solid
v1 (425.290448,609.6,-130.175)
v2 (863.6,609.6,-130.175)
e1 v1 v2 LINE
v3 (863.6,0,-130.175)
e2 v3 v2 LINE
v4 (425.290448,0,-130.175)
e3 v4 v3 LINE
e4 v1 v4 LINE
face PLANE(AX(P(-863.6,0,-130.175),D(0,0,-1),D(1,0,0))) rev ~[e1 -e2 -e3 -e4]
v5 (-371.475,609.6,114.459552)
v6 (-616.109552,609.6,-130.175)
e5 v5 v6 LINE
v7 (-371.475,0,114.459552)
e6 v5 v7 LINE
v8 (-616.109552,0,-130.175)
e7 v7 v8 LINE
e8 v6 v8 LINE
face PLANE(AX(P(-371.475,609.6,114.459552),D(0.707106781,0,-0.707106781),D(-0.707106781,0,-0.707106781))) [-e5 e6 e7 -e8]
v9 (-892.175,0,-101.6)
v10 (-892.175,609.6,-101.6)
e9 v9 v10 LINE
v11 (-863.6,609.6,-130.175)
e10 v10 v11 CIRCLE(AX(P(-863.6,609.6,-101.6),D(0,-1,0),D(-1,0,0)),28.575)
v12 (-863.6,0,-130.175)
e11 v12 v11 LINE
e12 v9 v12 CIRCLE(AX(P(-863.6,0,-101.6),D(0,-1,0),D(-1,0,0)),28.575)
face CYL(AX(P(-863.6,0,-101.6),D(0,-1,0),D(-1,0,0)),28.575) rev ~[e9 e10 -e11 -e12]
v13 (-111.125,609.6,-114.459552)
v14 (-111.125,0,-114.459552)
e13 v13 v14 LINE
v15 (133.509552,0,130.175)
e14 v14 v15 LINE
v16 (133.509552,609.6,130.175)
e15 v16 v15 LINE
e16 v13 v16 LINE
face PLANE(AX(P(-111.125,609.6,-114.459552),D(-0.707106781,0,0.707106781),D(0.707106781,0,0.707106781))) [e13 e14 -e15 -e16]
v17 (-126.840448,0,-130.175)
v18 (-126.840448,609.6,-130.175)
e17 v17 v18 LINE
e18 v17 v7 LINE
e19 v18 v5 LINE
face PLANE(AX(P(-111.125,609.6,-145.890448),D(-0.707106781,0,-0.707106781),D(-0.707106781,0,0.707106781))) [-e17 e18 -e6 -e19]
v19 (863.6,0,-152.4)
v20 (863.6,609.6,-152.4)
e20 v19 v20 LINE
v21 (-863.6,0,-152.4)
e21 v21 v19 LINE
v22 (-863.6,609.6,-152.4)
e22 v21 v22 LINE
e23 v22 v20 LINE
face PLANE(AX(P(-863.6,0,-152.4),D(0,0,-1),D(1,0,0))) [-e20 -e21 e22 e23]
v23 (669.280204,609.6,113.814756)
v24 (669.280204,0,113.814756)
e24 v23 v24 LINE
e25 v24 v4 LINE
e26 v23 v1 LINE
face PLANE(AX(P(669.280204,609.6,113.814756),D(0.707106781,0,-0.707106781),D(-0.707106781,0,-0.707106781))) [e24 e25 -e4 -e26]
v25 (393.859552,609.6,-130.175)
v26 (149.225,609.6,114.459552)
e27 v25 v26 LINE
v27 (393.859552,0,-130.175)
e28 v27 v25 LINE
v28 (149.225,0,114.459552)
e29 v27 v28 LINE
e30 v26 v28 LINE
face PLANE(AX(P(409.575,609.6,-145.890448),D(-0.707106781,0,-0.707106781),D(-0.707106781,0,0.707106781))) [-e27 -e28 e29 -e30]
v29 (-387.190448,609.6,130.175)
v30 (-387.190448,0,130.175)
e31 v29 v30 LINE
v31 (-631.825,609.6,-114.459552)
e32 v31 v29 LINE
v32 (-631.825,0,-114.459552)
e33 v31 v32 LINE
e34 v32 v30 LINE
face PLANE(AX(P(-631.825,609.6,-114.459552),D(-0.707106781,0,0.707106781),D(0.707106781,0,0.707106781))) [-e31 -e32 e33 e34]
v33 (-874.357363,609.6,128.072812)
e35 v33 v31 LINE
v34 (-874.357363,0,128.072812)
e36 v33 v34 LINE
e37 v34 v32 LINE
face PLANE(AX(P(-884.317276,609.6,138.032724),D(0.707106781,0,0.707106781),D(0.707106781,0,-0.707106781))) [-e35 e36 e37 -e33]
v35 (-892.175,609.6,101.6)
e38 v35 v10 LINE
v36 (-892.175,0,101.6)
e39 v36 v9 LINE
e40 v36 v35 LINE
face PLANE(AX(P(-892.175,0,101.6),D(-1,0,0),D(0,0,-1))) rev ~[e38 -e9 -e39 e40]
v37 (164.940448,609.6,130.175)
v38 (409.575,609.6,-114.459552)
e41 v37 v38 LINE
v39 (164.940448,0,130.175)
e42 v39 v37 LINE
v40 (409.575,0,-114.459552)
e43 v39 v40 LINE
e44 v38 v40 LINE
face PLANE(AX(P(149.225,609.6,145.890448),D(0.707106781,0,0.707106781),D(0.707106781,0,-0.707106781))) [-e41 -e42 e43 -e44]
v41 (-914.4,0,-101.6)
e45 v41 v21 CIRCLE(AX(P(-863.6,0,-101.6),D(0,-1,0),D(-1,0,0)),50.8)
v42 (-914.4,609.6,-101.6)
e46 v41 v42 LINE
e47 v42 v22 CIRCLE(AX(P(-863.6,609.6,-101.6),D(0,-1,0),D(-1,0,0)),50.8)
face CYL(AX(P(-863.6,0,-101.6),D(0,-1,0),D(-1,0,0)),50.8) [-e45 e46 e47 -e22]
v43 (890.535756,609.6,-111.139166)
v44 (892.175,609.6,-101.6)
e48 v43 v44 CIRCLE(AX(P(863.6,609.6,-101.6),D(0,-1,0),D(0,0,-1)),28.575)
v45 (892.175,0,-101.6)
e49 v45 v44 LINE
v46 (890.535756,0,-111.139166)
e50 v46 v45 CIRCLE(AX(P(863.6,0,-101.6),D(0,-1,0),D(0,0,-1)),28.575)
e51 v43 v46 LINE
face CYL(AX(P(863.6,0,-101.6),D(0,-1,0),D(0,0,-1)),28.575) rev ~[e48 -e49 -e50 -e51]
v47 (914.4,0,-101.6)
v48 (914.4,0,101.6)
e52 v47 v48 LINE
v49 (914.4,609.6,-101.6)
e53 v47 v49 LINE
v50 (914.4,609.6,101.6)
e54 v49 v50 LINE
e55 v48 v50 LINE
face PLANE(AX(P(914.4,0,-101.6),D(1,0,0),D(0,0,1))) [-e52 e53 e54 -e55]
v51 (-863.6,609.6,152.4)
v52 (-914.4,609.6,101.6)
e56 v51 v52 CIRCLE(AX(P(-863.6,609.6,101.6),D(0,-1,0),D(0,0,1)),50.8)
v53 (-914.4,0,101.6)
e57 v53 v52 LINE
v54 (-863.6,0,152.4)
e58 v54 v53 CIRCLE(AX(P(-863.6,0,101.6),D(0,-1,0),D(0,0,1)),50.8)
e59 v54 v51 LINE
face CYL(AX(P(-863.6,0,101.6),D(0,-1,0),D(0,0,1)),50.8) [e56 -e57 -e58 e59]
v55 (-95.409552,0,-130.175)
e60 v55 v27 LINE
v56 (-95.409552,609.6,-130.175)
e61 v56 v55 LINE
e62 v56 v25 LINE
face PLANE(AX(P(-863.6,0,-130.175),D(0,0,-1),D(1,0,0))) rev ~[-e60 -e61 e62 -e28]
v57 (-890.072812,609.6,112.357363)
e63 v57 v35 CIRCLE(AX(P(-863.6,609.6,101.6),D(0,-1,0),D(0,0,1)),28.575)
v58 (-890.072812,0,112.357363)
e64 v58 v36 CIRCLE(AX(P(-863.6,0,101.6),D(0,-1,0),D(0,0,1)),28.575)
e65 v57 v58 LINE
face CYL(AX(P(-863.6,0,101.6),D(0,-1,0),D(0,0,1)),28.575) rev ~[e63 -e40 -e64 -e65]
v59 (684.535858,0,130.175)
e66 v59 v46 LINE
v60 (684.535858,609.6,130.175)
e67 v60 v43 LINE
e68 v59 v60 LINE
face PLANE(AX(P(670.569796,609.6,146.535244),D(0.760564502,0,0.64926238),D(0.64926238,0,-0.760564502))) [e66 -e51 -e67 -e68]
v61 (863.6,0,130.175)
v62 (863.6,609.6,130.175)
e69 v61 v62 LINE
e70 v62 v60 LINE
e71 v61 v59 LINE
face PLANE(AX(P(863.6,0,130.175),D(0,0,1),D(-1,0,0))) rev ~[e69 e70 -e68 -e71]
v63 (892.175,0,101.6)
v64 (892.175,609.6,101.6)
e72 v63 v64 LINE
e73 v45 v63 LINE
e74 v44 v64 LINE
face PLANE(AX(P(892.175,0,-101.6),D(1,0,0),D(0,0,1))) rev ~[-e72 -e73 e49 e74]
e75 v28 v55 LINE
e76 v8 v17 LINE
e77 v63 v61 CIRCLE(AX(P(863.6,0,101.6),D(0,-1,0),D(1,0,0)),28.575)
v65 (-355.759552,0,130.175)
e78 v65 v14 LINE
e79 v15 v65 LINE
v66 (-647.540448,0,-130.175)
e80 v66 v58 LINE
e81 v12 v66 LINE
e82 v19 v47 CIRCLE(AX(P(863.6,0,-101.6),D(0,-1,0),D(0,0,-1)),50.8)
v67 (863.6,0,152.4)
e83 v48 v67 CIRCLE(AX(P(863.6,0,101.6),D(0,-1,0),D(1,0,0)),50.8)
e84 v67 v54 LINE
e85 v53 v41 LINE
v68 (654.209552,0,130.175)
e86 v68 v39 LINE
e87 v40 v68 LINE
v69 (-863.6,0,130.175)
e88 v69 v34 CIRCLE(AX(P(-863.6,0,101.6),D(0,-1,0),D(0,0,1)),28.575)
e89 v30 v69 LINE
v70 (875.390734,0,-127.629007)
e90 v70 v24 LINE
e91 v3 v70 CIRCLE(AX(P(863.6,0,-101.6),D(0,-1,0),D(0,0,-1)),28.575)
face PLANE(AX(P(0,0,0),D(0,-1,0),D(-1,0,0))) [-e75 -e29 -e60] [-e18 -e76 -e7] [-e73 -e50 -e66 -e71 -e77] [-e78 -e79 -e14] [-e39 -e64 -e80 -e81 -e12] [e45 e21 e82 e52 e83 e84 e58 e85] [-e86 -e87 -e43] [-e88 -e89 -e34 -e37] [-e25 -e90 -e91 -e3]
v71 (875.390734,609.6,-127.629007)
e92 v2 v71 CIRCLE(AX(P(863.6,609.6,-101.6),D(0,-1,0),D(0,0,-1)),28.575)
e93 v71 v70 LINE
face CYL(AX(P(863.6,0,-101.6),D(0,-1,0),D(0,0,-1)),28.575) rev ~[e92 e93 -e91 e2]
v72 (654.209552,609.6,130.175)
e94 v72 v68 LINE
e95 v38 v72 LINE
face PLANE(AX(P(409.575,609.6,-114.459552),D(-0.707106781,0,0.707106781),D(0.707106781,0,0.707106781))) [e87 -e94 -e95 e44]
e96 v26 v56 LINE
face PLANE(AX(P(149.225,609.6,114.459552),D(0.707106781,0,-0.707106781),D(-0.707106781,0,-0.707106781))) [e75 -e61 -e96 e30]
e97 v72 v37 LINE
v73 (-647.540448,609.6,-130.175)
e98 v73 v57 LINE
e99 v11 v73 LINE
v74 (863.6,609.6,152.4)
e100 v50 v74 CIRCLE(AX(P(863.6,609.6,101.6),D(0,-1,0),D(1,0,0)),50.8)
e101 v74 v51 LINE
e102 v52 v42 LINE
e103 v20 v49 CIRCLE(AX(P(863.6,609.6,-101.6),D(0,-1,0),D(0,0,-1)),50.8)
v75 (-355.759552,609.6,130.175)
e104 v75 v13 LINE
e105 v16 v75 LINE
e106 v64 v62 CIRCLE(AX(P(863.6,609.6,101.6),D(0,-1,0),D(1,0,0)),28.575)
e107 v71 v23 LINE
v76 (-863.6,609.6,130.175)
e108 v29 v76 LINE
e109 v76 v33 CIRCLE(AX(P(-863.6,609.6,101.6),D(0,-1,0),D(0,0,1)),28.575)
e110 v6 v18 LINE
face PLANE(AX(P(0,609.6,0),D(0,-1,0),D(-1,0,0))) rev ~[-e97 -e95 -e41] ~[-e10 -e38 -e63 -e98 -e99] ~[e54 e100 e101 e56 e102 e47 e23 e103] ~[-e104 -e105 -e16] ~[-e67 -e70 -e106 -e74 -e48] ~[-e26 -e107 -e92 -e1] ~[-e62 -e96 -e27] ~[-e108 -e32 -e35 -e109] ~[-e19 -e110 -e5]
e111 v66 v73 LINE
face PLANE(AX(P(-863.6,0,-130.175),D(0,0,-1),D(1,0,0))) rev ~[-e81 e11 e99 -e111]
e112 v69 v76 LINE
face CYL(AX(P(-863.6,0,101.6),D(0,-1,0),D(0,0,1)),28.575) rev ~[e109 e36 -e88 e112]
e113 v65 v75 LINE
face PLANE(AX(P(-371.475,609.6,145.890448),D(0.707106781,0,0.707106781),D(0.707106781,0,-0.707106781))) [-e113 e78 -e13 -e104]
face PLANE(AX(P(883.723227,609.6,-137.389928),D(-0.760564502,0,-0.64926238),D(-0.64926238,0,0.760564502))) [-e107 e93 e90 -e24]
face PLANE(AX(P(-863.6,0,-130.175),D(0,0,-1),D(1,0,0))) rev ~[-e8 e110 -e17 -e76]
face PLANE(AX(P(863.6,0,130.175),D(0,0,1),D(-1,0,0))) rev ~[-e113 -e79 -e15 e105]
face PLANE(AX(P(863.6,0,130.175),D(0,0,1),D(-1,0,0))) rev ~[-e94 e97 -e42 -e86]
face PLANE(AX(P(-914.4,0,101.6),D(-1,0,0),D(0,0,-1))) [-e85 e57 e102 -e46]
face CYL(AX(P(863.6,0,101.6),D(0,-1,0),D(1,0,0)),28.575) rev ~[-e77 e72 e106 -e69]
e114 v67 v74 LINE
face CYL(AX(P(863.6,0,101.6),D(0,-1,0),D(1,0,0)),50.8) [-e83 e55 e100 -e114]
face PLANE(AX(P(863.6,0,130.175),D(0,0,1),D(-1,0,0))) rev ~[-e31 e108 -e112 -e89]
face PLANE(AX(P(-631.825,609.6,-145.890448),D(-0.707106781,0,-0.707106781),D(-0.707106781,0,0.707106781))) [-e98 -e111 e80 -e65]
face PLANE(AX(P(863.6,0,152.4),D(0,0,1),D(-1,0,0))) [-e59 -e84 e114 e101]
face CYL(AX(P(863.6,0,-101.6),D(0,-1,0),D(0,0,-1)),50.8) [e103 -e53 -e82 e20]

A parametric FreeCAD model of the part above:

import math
import FreeCAD as App
import Part
import Sketcher
from FreeCAD import Vector
Q = App.Units.Quantity

doc = App.newDocument("Part")
params = doc.addObject("Spreadsheet::Sheet", "Params")
for row, (alias, value) in enumerate([
    ("sketch1_radius", "2 in"),
    ("sketch1_width", "68 in"),
    ("sketch1_height", "8 in"),
    ("sketch1_radius2", "1.125 in"),
    ("pad1_length", "24 in"),
    ("sketch2_length", "0.875 in"),
    ("pad2_length", "24 in"),
], start=1):
    params.set(f"A{row}", alias)
    params.set(f"B{row}", "=" + value)
    params.setAlias(f"B{row}", alias)

body = doc.addObject("PartDesign::Body", "Body")

sketch1 = doc.addObject("Sketcher::SketchObject", "Sketch")
body.addObject(sketch1)
sketch1.AttachmentSupport = (doc.XZ_Plane, [""])
sketch1.MapMode = "FlatFace"
sketch1.addGeometry([
    Part.LineSegment(Vector(863.6, -152.4, 0), Vector(-863.6, -152.4, 0)),
    Part.ArcOfCircle(Part.Circle(Vector(-863.6, -101.6, 0), Vector(0, 0, 1), 50.8), math.radians(-180), math.radians(-90)),
    Part.LineSegment(Vector(-914.4, -101.6, 0), Vector(-914.4, 101.6, 0)),
    Part.ArcOfCircle(Part.Circle(Vector(-863.6, 101.6, 0), Vector(0, 0, 1), 50.8), math.radians(90), math.radians(180)),
    Part.LineSegment(Vector(-863.6, 152.4, 0), Vector(863.6, 152.4, 0)),
    Part.ArcOfCircle(Part.Circle(Vector(863.6, 101.6, 0), Vector(0, 0, 1), 50.8), math.radians(0), math.radians(90)),
    Part.LineSegment(Vector(914.4, 101.6, 0), Vector(914.4, -101.6, 0)),
    Part.ArcOfCircle(Part.Circle(Vector(863.6, -101.6, 0), Vector(0, 0, 1), 50.8), math.radians(-90), math.radians(0)),
    Part.LineSegment(Vector(-863.6, -130.175, 0), Vector(863.6, -130.175, 0)),
    Part.ArcOfCircle(Part.Circle(Vector(863.6, -101.6, 0), Vector(0, 0, 1), 28.575), math.radians(-90), math.radians(0)),
    Part.LineSegment(Vector(892.175, -101.6, 0), Vector(892.175, 101.6, 0)),
    Part.ArcOfCircle(Part.Circle(Vector(863.6, 101.6, 0), Vector(0, 0, 1), 28.575), math.radians(0), math.radians(90)),
    Part.LineSegment(Vector(863.6, 130.175, 0), Vector(-863.6, 130.175, 0)),
    Part.ArcOfCircle(Part.Circle(Vector(-863.6, 101.6, 0), Vector(0, 0, 1), 28.575), math.radians(90), math.radians(180)),
    Part.LineSegment(Vector(-892.175, 101.6, 0), Vector(-892.175, -101.6, 0)),
    Part.ArcOfCircle(Part.Circle(Vector(-863.6, -101.6, 0), Vector(0, 0, 1), 28.575), math.radians(-180), math.radians(-90)),
], False)
sketch1.addConstraint([
    Sketcher.Constraint("Tangent", 0, 2, 1, 2),
    Sketcher.Constraint("Tangent", 1, 1, 2, 1),
    Sketcher.Constraint("Tangent", 2, 2, 3, 2),
    Sketcher.Constraint("Tangent", 3, 1, 4, 1),
    Sketcher.Constraint("Tangent", 4, 2, 5, 2),
    Sketcher.Constraint("Tangent", 5, 1, 6, 1),
    Sketcher.Constraint("Tangent", 6, 2, 7, 2),
    Sketcher.Constraint("Tangent", 7, 1, 0, 1),
    Sketcher.Constraint("Tangent", 8, 2, 9, 1),
    Sketcher.Constraint("Tangent", 9, 2, 10, 1),
    Sketcher.Constraint("Tangent", 10, 2, 11, 1),
    Sketcher.Constraint("Tangent", 11, 2, 12, 1),
    Sketcher.Constraint("Tangent", 12, 2, 13, 1),
    Sketcher.Constraint("Tangent", 13, 2, 14, 1),
    Sketcher.Constraint("Tangent", 14, 2, 15, 1),
    Sketcher.Constraint("Tangent", 15, 2, 8, 1),
    Sketcher.Constraint("Horizontal", 0),
    Sketcher.Constraint("Vertical", 2),
    Sketcher.Constraint("Horizontal", 4),
    Sketcher.Constraint("Vertical", 6),
    Sketcher.Constraint("Horizontal", 8),
    Sketcher.Constraint("Vertical", 10),
    Sketcher.Constraint("Horizontal", 12),
    Sketcher.Constraint("Vertical", 14),
    Sketcher.Constraint("Coincident", 9, 3, 7, 3),
    Sketcher.Constraint("Coincident", 11, 3, 5, 3),
    Sketcher.Constraint("Coincident", 13, 3, 3, 3),
    Sketcher.Constraint("Equal", 1, 3),
    Sketcher.Constraint("Equal", 3, 5),
    Sketcher.Constraint("Equal", 5, 7),
    Sketcher.Constraint("Equal", 13, 15),
    Sketcher.Constraint("Symmetric", 1, 3, 5, 3, -1, 1),
    Sketcher.Constraint("Radius", 1, Q("2 in")),
    Sketcher.Constraint("DistanceX", 0, 2, 0, 1, Q("68 in")),
    Sketcher.Constraint("DistanceY", 2, 1, 2, 2, Q("8 in")),
    Sketcher.Constraint("Radius", 9, Q("1.125 in")),
])
sketch1.setExpression("Constraints[32]", "Params.sketch1_radius")
sketch1.setExpression("Constraints[33]", "Params.sketch1_width")
sketch1.setExpression("Constraints[34]", "Params.sketch1_height")
sketch1.setExpression("Constraints[35]", "Params.sketch1_radius2")
pad1 = doc.addObject("PartDesign::Pad", "Pad")
body.addObject(pad1)
pad1.Profile = sketch1
pad1.setExpression("Length", "Params.pad1_length")
pad1.Reversed = True

sketch2 = doc.addObject("Sketcher::SketchObject", "Sketch001")
body.addObject(sketch2)
sketch2.AttachmentSupport = (doc.XZ_Plane, [""])
sketch2.MapMode = "FlatFace"
sketch2.AttachmentOffset = App.Placement(Vector(0, 0, -24 * 25.4), App.Rotation())
sketch2.addGeometry([
    Part.LineSegment(Vector(-884.317276, 138.032724, 0), Vector(-631.825, -114.459552, 0)),
    Part.LineSegment(Vector(-631.825, -114.459552, 0), Vector(-371.475, 145.890448, 0)),
    Part.LineSegment(Vector(-371.475, 145.890448, 0), Vector(-111.125, -114.459552, 0)),
    Part.LineSegment(Vector(-111.125, -114.459552, 0), Vector(149.225, 145.890448, 0)),
    Part.LineSegment(Vector(149.225, 145.890448, 0), Vector(409.575, -114.459552, 0)),
    Part.LineSegment(Vector(409.575, -114.459552, 0), Vector(670.569796, 146.535244, 0)),
    Part.LineSegment(Vector(670.569796, 146.535244, 0), Vector(900.626773, -122.960072, 0)),
    Part.LineSegment(Vector(900.626773, -122.960072, 0), Vector(883.723227, -137.389928, 0)),
    Part.LineSegment(Vector(883.723227, -137.389928, 0), Vector(669.280204, 113.814756, 0)),
    Part.LineSegment(Vector(669.280204, 113.814756, 0), Vector(409.575, -145.890448, 0)),
    Part.LineSegment(Vector(409.575, -145.890448, 0), Vector(149.225, 114.459552, 0)),
    Part.LineSegment(Vector(149.225, 114.459552, 0), Vector(-111.125, -145.890448, 0)),
    Part.LineSegment(Vector(-111.125, -145.890448, 0), Vector(-371.475, 114.459552, 0)),
    Part.LineSegment(Vector(-371.475, 114.459552, 0), Vector(-631.825, -145.890448, 0)),
    Part.LineSegment(Vector(-631.825, -145.890448, 0), Vector(-900.032724, 122.317276, 0)),
    Part.LineSegment(Vector(-900.032724, 122.317276, 0), Vector(-884.317276, 138.032724, 0)),
], False)
sketch2.addConstraint([
    Sketcher.Constraint("Coincident", 0, 2, 1, 1),
    Sketcher.Constraint("Coincident", 1, 2, 2, 1),
    Sketcher.Constraint("Coincident", 2, 2, 3, 1),
    Sketcher.Constraint("Coincident", 3, 2, 4, 1),
    Sketcher.Constraint("Coincident", 4, 2, 5, 1),
    Sketcher.Constraint("Coincident", 5, 2, 6, 1),
    Sketcher.Constraint("Coincident", 6, 2, 7, 1),
    Sketcher.Constraint("Coincident", 7, 2, 8, 1),
    Sketcher.Constraint("Coincident", 8, 2, 9, 1),
    Sketcher.Constraint("Coincident", 9, 2, 10, 1),
    Sketcher.Constraint("Coincident", 10, 2, 11, 1),
    Sketcher.Constraint("Coincident", 11, 2, 12, 1),
    Sketcher.Constraint("Coincident", 12, 2, 13, 1),
    Sketcher.Constraint("Coincident", 13, 2, 14, 1),
    Sketcher.Constraint("Coincident", 14, 2, 15, 1),
    Sketcher.Constraint("Coincident", 15, 2, 0, 1),
    Sketcher.Constraint("Perpendicular", 0, 1),
    Sketcher.Constraint("Perpendicular", 1, 2),
    Sketcher.Constraint("Perpendicular", 2, 3),
    Sketcher.Constraint("Perpendicular", 3, 4),
    Sketcher.Constraint("Perpendicular", 4, 5),
    Sketcher.Constraint("Perpendicular", 6, 7),
    Sketcher.Constraint("Perpendicular", 7, 8),
    Sketcher.Constraint("Parallel", 5, 9),
    Sketcher.Constraint("Perpendicular", 9, 10),
    Sketcher.Constraint("Perpendicular", 10, 11),
    Sketcher.Constraint("Perpendicular", 11, 12),
    Sketcher.Constraint("Perpendicular", 12, 13),
    Sketcher.Constraint("Perpendicular", 13, 14),
    Sketcher.Constraint("Perpendicular", 14, 15),
    Sketcher.Constraint("Horizontal", 0, 2, 2, 2),
    Sketcher.Constraint("Horizontal", 1, 2, 3, 2),
    Sketcher.Constraint("Horizontal", 2, 2, 4, 2),
    Sketcher.Constraint("Horizontal", 9, 2, 11, 2),
    Sketcher.Constraint("Horizontal", 10, 2, 12, 2),
    Sketcher.Constraint("Horizontal", 11, 2, 13, 2),
    Sketcher.Constraint("Vertical", 4, 2, 9, 2),
    Sketcher.Constraint("Vertical", 3, 2, 10, 2),
    Sketcher.Constraint("Equal", 1, 2),
    Sketcher.Constraint("Equal", 7, 15),
    Sketcher.Constraint("DistanceX", 0, 2, 4, 2, Q("41 in")),
    Sketcher.Constraint("Distance", 7, Q("0.875 in")),
    Sketcher.Constraint("DistanceX", 0, 2, -1, 1, Q("24.875 in")),
    Sketcher.Constraint("Distance", 0, Q("357.078001 mm")),
    Sketcher.Constraint("Distance", 5, Q("369.10238 mm")),
    Sketcher.Constraint("Distance", 6, Q("354.335911 mm")),
    Sketcher.Constraint("Distance", 9, Q("367.278622 mm")),
    Sketcher.Constraint("DistanceY", 0, 2, -1, 1, Q("114.459552 mm")),
])
sketch2.setExpression("Constraints[41]", "Params.sketch2_length")
pad2 = doc.addObject("PartDesign::Pad", "Pad001")
body.addObject(pad2)
pad2.Profile = sketch2
pad2.setExpression("Length", "Params.pad2_length")

doc.recompute()
